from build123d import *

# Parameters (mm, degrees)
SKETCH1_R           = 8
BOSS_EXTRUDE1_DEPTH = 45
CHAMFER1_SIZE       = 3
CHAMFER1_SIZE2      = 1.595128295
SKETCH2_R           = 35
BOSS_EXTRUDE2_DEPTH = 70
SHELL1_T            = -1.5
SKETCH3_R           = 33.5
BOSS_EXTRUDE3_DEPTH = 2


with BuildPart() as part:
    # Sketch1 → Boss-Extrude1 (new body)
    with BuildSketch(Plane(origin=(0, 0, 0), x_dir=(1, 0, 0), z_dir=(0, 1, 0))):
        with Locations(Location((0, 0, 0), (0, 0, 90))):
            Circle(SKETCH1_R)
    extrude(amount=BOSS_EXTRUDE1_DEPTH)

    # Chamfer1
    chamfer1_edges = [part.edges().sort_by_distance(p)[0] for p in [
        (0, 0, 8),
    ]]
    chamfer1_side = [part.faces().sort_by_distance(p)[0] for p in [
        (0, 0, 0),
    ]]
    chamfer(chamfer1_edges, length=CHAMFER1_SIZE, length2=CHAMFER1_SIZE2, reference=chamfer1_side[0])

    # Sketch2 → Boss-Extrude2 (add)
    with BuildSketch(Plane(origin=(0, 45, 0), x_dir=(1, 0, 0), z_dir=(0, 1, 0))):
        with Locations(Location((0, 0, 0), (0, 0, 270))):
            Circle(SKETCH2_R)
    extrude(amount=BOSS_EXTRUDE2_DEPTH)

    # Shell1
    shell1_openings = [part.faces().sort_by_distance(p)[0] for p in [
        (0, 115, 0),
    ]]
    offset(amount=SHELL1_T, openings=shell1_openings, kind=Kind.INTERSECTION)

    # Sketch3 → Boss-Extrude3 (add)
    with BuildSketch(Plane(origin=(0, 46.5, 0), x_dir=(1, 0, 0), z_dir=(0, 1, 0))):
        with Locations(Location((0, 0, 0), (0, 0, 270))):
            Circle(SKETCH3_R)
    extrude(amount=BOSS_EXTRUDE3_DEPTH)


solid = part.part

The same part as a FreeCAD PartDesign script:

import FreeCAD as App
import Part
import Sketcher
Q = App.Units.Quantity


def edges_at(feature, points):
    """Names of the edges that pass closest to the given points."""
    edges = feature.Shape.Edges
    near = lambda p: min(range(len(edges)), key=lambda i: edges[i].distToShape(Part.Vertex(*p))[0])
    return sorted({f"Edge{near(p) + 1}" for p in points})


def faces_at(feature, points):
    """Names of the faces that lie closest to the given points."""
    faces = feature.Shape.Faces
    near = lambda p: min(range(len(faces)), key=lambda i: faces[i].distToShape(Part.Vertex(*p))[0])
    return sorted({f"Face{near(p) + 1}" for p in points})

doc = App.newDocument("Part")
body = doc.addObject("PartDesign::Body", "Body")

# Sketch on XZ plane
sketch1 = body.newObject("Sketcher::SketchObject", "Sketch")
sketch1.AttachmentSupport = (doc.getObject("XZ_Plane"), [""])
sketch1.MapMode = "FlatFace"
sketch1.addGeometry(Part.Circle(App.Vector(0, 0, 0), App.Vector(0, 0, 1), 8), False)
sketch1.addConstraint([
    Sketcher.Constraint("Coincident", 0, 3, -1, 1),
    Sketcher.Constraint("Diameter", 0, Q("16 mm")),
])
pad1 = body.newObject("PartDesign::Pad", "Pad")
pad1.Profile = sketch1
pad1.Length = 45
pad1.Reversed = True
doc.recompute()

chamfer = body.newObject("PartDesign::Chamfer", "Chamfer")
chamfer.Base = (pad1, edges_at(pad1, [(0, 0, 8)]))
chamfer.ChamferType = "Two distances"
chamfer.Size = 3
chamfer.Size2 = 1.595128
chamfer.FlipDirection = True

# Sketch on XZ plane
sketch2 = body.newObject("Sketcher::SketchObject", "Sketch001")
sketch2.AttachmentSupport = (doc.getObject("XZ_Plane"), [""])
sketch2.MapMode = "FlatFace"
sketch2.AttachmentOffset = App.Placement(App.Vector(0, 0, -45), App.Rotation())
sketch2.addGeometry(Part.Circle(App.Vector(0, 0, 0), App.Vector(0, 0, 1), 35), False)
sketch2.addConstraint([
    Sketcher.Constraint("Coincident", 0, 3, -1, 1),
    Sketcher.Constraint("Diameter", 0, Q("70 mm")),
])
pad2 = body.newObject("PartDesign::Pad", "Pad001")
pad2.Profile = sketch2
pad2.Length = 70
pad2.Reversed = True
doc.recompute()

thickness = body.newObject("PartDesign::Thickness", "Thickness")
thickness.Base = (pad2, faces_at(pad2, [(0, 115, 0)]))
thickness.Value = 1.5
thickness.Reversed = True
thickness.Join = "Intersection"

# Sketch on XZ plane
sketch3 = body.newObject("Sketcher::SketchObject", "Sketch002")
sketch3.AttachmentSupport = (doc.getObject("XZ_Plane"), [""])
sketch3.MapMode = "FlatFace"
sketch3.AttachmentOffset = App.Placement(App.Vector(0, 0, -46.5), App.Rotation())
sketch3.addGeometry(Part.Circle(App.Vector(0, 0, 0), App.Vector(0, 0, 1), 34), False)
sketch3.addConstraint([
    Sketcher.Constraint("Coincident", 0, 3, -1, 1),
    Sketcher.Constraint("Diameter", 0, Q("67 mm")),
])
pad3 = body.newObject("PartDesign::Pad", "Pad002")
pad3.Profile = sketch3
pad3.Length = 2
pad3.Reversed = True

doc.recompute()
